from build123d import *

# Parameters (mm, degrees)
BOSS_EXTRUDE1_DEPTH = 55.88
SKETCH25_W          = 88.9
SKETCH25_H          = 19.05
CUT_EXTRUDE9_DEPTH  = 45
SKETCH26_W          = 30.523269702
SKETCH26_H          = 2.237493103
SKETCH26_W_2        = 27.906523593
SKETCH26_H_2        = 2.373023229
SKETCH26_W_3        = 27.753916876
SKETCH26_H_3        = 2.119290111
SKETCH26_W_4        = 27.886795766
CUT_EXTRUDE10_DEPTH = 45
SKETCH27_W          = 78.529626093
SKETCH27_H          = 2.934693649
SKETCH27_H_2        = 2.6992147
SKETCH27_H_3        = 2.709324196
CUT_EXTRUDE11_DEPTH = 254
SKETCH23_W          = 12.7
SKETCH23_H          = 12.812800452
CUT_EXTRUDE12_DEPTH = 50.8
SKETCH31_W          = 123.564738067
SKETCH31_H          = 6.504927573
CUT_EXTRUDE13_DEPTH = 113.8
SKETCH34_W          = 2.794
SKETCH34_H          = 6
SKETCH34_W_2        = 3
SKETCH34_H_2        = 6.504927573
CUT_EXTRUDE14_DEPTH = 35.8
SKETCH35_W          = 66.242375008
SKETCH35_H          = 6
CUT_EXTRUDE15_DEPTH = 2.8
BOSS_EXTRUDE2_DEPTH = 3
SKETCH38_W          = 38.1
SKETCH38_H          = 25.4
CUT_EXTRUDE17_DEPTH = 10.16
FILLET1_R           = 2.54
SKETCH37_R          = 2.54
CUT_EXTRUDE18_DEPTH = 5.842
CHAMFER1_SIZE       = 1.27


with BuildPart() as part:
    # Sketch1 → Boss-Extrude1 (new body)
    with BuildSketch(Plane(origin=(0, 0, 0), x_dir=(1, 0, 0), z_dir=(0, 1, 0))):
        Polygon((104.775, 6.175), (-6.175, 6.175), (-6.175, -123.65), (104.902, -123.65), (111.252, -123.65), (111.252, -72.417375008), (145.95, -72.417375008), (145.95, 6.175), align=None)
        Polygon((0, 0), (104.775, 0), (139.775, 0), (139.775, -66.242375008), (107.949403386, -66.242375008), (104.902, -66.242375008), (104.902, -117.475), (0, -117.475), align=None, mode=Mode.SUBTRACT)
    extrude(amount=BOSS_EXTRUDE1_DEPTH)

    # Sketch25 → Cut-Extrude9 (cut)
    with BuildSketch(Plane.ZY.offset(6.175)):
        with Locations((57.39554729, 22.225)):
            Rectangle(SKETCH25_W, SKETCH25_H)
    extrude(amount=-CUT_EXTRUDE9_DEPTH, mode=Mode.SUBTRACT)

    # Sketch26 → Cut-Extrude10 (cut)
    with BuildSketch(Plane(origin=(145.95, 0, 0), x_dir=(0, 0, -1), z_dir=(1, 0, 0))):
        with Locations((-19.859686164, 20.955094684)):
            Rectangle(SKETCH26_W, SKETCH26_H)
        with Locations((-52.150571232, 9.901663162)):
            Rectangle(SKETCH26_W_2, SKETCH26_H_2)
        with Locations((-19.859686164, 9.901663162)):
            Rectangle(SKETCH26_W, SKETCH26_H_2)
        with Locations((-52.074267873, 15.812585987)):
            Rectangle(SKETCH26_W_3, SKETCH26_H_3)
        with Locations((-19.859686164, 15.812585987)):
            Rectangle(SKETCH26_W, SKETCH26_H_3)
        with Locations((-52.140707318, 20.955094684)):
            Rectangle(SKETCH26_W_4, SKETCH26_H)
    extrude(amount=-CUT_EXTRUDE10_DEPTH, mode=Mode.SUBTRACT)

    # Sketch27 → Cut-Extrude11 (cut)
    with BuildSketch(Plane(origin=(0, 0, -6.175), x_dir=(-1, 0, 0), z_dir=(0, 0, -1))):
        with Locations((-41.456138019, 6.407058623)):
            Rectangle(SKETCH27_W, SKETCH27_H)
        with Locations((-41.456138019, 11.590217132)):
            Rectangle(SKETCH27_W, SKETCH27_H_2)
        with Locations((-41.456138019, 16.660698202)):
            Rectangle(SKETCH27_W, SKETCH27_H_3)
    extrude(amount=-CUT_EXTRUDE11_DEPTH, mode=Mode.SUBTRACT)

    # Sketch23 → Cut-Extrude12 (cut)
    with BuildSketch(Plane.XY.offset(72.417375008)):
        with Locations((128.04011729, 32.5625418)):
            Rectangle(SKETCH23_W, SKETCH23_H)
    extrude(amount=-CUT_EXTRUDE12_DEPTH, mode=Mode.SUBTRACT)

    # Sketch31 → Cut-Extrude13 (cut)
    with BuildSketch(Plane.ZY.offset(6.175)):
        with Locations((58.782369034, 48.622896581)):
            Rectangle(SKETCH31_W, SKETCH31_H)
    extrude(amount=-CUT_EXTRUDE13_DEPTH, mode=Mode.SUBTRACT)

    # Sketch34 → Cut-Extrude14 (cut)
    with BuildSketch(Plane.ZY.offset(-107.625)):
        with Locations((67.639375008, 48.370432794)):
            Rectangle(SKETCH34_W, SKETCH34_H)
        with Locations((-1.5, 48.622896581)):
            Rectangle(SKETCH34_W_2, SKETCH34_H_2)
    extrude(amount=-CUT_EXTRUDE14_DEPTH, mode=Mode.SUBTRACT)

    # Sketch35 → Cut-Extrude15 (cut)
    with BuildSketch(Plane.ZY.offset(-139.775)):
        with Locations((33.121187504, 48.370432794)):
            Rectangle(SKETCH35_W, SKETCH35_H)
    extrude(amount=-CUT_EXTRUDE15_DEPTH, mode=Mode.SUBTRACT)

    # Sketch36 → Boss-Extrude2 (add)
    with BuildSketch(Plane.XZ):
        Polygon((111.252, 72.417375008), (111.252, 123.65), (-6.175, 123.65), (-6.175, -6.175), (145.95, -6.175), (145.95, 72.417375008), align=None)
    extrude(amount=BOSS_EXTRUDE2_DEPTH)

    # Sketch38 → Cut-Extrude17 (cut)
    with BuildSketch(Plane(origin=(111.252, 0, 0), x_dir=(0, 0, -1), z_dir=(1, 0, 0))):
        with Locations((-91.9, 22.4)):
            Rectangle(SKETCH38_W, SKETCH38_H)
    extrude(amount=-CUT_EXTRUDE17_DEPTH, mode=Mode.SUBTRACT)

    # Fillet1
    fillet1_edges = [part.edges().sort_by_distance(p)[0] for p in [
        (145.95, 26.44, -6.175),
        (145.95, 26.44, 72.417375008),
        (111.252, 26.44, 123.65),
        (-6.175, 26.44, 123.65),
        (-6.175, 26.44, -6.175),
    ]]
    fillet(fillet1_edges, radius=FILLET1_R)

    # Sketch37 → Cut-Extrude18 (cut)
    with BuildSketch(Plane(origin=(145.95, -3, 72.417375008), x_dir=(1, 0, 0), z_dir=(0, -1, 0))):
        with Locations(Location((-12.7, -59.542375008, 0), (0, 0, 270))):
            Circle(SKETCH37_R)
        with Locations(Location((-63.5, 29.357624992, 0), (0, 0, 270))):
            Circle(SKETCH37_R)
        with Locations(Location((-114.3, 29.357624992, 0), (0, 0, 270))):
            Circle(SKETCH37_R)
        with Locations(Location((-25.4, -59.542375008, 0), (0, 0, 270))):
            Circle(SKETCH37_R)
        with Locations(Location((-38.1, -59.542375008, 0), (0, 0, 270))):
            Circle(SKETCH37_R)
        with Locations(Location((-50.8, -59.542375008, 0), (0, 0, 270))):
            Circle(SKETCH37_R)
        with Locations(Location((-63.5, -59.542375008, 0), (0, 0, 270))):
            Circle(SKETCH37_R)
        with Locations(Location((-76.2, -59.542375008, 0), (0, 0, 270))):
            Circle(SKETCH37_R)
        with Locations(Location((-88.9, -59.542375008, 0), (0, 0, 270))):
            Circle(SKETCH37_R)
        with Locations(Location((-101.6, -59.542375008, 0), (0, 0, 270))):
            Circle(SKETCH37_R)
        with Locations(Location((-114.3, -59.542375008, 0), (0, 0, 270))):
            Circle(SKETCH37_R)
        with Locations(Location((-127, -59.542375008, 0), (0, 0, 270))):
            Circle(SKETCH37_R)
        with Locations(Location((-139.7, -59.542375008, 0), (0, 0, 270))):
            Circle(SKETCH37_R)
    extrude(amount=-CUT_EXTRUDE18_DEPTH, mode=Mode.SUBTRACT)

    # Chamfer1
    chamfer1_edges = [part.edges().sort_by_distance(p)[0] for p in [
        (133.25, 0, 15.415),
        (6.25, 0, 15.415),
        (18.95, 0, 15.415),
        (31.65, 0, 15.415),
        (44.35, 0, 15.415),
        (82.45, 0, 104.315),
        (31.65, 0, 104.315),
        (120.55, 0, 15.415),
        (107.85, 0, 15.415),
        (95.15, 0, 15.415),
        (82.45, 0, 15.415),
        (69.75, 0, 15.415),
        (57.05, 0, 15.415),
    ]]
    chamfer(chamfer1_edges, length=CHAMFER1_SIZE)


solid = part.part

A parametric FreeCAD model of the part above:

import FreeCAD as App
import Part
import Sketcher

V = App.Vector
Q = App.Units.Quantity


def edges_at(feature, points):
    """Names of the edges that pass closest to the given points."""
    edges = feature.Shape.Edges
    near = lambda p: min(range(len(edges)), key=lambda i: edges[i].distToShape(Part.Vertex(*p))[0])
    return sorted({f"Edge{near(p) + 1}" for p in points})

doc = App.newDocument("Part")
body = doc.addObject("PartDesign::Body", "Body")

# Sketch on XZ plane
sketch1 = doc.addObject("Sketcher::SketchObject", "Sketch")
body.addObject(sketch1)
sketch1.AttachmentSupport = (doc.XZ_Plane, [""])
sketch1.MapMode = "FlatFace"
sketch1.addGeometry([
    Part.LineSegment(V(-6, -6, 0), V(-6, 124, 0)),  # 0
    Part.LineSegment(V(-6, 124, 0), V(111, 124, 0)),  # 1
    Part.LineSegment(V(111, 124, 0), V(111, 72, 0)),  # 2
    Part.LineSegment(V(111, 72, 0), V(146, 72, 0)),  # 3
    Part.LineSegment(V(146, 72, 0), V(146, -6, 0)),  # 4
    Part.LineSegment(V(146, -6, 0), V(-6, -6, 0)),  # 5
    Part.LineSegment(V(0, 117, 0), V(0, 0, 0)),  # 6
    Part.LineSegment(V(0, 0, 0), V(140, 0, 0)),  # 7
    Part.LineSegment(V(140, 0, 0), V(140, 66, 0)),  # 8
    Part.LineSegment(V(140, 66, 0), V(105, 66, 0)),  # 9
    Part.LineSegment(V(105, 66, 0), V(105, 117, 0)),  # 10
    Part.LineSegment(V(105, 117, 0), V(0, 117, 0)),  # 11
], False)
sketch1.addConstraint([
    Sketcher.Constraint("Coincident", 0, 2, 1, 1),
    Sketcher.Constraint("Coincident", 1, 2, 2, 1),
    Sketcher.Constraint("Coincident", 2, 2, 3, 1),
    Sketcher.Constraint("Coincident", 3, 2, 4, 1),
    Sketcher.Constraint("Coincident", 4, 2, 5, 1),
    Sketcher.Constraint("Coincident", 5, 2, 0, 1),
    Sketcher.Constraint("Coincident", 6, 2, 7, 1),
    Sketcher.Constraint("Coincident", 7, 2, 8, 1),
    Sketcher.Constraint("Coincident", 8, 2, 9, 1),
    Sketcher.Constraint("Coincident", 9, 2, 10, 1),
    Sketcher.Constraint("Coincident", 10, 2, 11, 1),
    Sketcher.Constraint("Coincident", 11, 2, 6, 1),
    Sketcher.Constraint("Vertical", 0),
    Sketcher.Constraint("Horizontal", 1),
    Sketcher.Constraint("Vertical", 2),
    Sketcher.Constraint("Horizontal", 3),
    Sketcher.Constraint("Vertical", 4),
    Sketcher.Constraint("Horizontal", 5),
    Sketcher.Constraint("Vertical", 6),
    Sketcher.Constraint("Horizontal", 7),
    Sketcher.Constraint("Vertical", 8),
    Sketcher.Constraint("Horizontal", 9),
    Sketcher.Constraint("Vertical", 10),
    Sketcher.Constraint("Horizontal", 11),
    Sketcher.Constraint("Coincident", 6, 2, -1, 1),
    Sketcher.Constraint("Equal", 2, 10),
    Sketcher.Constraint("DistanceX", 11, 2, 11, 1, Q("4.13 in")),
    Sketcher.Constraint("DistanceY", 6, 2, 6, 1, Q("4.625 in")),
    Sketcher.Constraint("DistanceX", -1, 1, 1, 2, Q("4.38 in")),
    Sketcher.Constraint("DistanceX", 1, 1, 1, 2, 117.427),
    Sketcher.Constraint("DistanceX", 3, 1, 3, 2, 34.698),
    Sketcher.Constraint("DistanceX", 7, 1, 7, 2, 139.775),
    Sketcher.Constraint("DistanceY", 0, 1, 0, 2, 129.825),
    Sketcher.Constraint("DistanceY", -1, 1, 0, 2, 123.65),
    Sketcher.Constraint("DistanceY", 2, 2, 2, 1, 51.232625),
])
pad1 = doc.addObject("PartDesign::Pad", "Pad")
body.addObject(pad1)
pad1.Profile = sketch1
pad1.Length = Q("2.2 in")
pad1.Reversed = True

# Sketch on YZ plane
sketch2 = doc.addObject("Sketcher::SketchObject", "Sketch001")
body.addObject(sketch2)
sketch2.AttachmentSupport = (doc.YZ_Plane, [""])
sketch2.MapMode = "FlatFace"
sketch2.AttachmentOffset = App.Placement(V(0, 0, -6.175), App.Rotation())
sketch2.addGeometry([
    Part.LineSegment(V(32, 13, 0), V(13, 13, 0)),
    Part.LineSegment(V(13, 13, 0), V(13, 102, 0)),
    Part.LineSegment(V(13, 102, 0), V(32, 102, 0)),
    Part.LineSegment(V(32, 102, 0), V(32, 13, 0)),
], False)
sketch2.addConstraint([
    Sketcher.Constraint("Coincident", 0, 2, 1, 1),
    Sketcher.Constraint("Coincident", 1, 2, 2, 1),
    Sketcher.Constraint("Coincident", 2, 2, 3, 1),
    Sketcher.Constraint("Coincident", 3, 2, 0, 1),
    Sketcher.Constraint("Horizontal", 0),
    Sketcher.Constraint("Vertical", 1),
    Sketcher.Constraint("Horizontal", 2),
    Sketcher.Constraint("Vertical", 3),
    Sketcher.Constraint("DistanceY", 1, 1, 1, 2, Q("3.5 in")),
    Sketcher.Constraint("DistanceX", 0, 2, 0, 1, Q("0.75 in")),
    Sketcher.Constraint("DistanceX", -1, 1, 0, 2, Q("0.5 in")),
    Sketcher.Constraint("DistanceY", -1, 1, 0, 2, 12.945547),
])
pocket1 = doc.addObject("PartDesign::Pocket", "Pocket")
body.addObject(pocket1)
pocket1.Profile = sketch2
pocket1.Length = 45
pocket1.Reversed = True

# Sketch on YZ plane
sketch3 = doc.addObject("Sketcher::SketchObject", "Sketch002")
body.addObject(sketch3)
sketch3.AttachmentSupport = (doc.YZ_Plane, [""])
sketch3.MapMode = "FlatFace"
sketch3.AttachmentOffset = App.Placement(V(0, 0, 145.95), App.Rotation())
sketch3.addGeometry([
    Part.LineSegment(V(22.1, 35.1, 0), V(19.8, 35.1, 0)),  # 0
    Part.LineSegment(V(19.8, 35.1, 0), V(19.8, 4.6, 0)),  # 1
    Part.LineSegment(V(19.8, 4.6, 0), V(22.1, 4.6, 0)),  # 2
    Part.LineSegment(V(22.1, 4.6, 0), V(22.1, 35.1, 0)),  # 3
    Part.LineSegment(V(11.1, 66.1, 0), V(8.7, 66.1, 0)),  # 4
    Part.LineSegment(V(8.7, 66.1, 0), V(8.7, 38.2, 0)),  # 5
    Part.LineSegment(V(8.7, 38.2, 0), V(11.1, 38.2, 0)),  # 6
    Part.LineSegment(V(11.1, 38.2, 0), V(11.1, 66.1, 0)),  # 7
    Part.LineSegment(V(11.1, 35.1, 0), V(8.7, 35.1, 0)),  # 8
    Part.LineSegment(V(8.7, 35.1, 0), V(8.7, 4.6, 0)),  # 9
    Part.LineSegment(V(8.7, 4.6, 0), V(11.1, 4.6, 0)),  # 10
    Part.LineSegment(V(11.1, 4.6, 0), V(11.1, 35.1, 0)),  # 11
    Part.LineSegment(V(16.9, 66, 0), V(14.8, 66, 0)),  # 12
    Part.LineSegment(V(14.8, 66, 0), V(14.8, 38.2, 0)),  # 13
    Part.LineSegment(V(14.8, 38.2, 0), V(16.9, 38.2, 0)),  # 14
    Part.LineSegment(V(16.9, 38.2, 0), V(16.9, 66, 0)),  # 15
    Part.LineSegment(V(16.9, 35.1, 0), V(14.8, 35.1, 0)),  # 16
    Part.LineSegment(V(14.8, 35.1, 0), V(14.8, 4.6, 0)),  # 17
    Part.LineSegment(V(14.8, 4.6, 0), V(16.9, 4.6, 0)),  # 18
    Part.LineSegment(V(16.9, 4.6, 0), V(16.9, 35.1, 0)),  # 19
    Part.LineSegment(V(22.1, 66.1, 0), V(19.8, 66.1, 0)),  # 20
    Part.LineSegment(V(19.8, 66.1, 0), V(19.8, 38.2, 0)),  # 21
    Part.LineSegment(V(19.8, 38.2, 0), V(22.1, 38.2, 0)),  # 22
    Part.LineSegment(V(22.1, 38.2, 0), V(22.1, 66.1, 0)),  # 23
], False)
sketch3.addConstraint([
    Sketcher.Constraint("Coincident", 0, 2, 1, 1),
    Sketcher.Constraint("Coincident", 1, 2, 2, 1),
    Sketcher.Constraint("Coincident", 2, 2, 3, 1),
    Sketcher.Constraint("Coincident", 3, 2, 0, 1),
    Sketcher.Constraint("Coincident", 4, 2, 5, 1),
    Sketcher.Constraint("Coincident", 5, 2, 6, 1),
    Sketcher.Constraint("Coincident", 6, 2, 7, 1),
    Sketcher.Constraint("Coincident", 7, 2, 4, 1),
    Sketcher.Constraint("Coincident", 8, 2, 9, 1),
    Sketcher.Constraint("Coincident", 9, 2, 10, 1),
    Sketcher.Constraint("Coincident", 10, 2, 11, 1),
    Sketcher.Constraint("Coincident", 11, 2, 8, 1),
    Sketcher.Constraint("Coincident", 12, 2, 13, 1),
    Sketcher.Constraint("Coincident", 13, 2, 14, 1),
    Sketcher.Constraint("Coincident", 14, 2, 15, 1),
    Sketcher.Constraint("Coincident", 15, 2, 12, 1),
    Sketcher.Constraint("Coincident", 16, 2, 17, 1),
    Sketcher.Constraint("Coincident", 17, 2, 18, 1),
    Sketcher.Constraint("Coincident", 18, 2, 19, 1),
    Sketcher.Constraint("Coincident", 19, 2, 16, 1),
    Sketcher.Constraint("Coincident", 20, 2, 21, 1),
    Sketcher.Constraint("Coincident", 21, 2, 22, 1),
    Sketcher.Constraint("Coincident", 22, 2, 23, 1),
    Sketcher.Constraint("Coincident", 23, 2, 20, 1),
    Sketcher.Constraint("Horizontal", 0),
    Sketcher.Constraint("Vertical", 1),
    Sketcher.Constraint("Horizontal", 2),
    Sketcher.Constraint("Vertical", 3),
    Sketcher.Constraint("Horizontal", 4),
    Sketcher.Constraint("Vertical", 5),
    Sketcher.Constraint("Horizontal", 6),
    Sketcher.Constraint("Vertical", 7),
    Sketcher.Constraint("Horizontal", 8),
    Sketcher.Constraint("Vertical", 9),
    Sketcher.Constraint("Horizontal", 10),
    Sketcher.Constraint("Vertical", 11),
    Sketcher.Constraint("Horizontal", 12),
    Sketcher.Constraint("Vertical", 13),
    Sketcher.Constraint("Horizontal", 14),
    Sketcher.Constraint("Vertical", 15),
    Sketcher.Constraint("Horizontal", 16),
    Sketcher.Constraint("Vertical", 17),
    Sketcher.Constraint("Horizontal", 18),
    Sketcher.Constraint("Vertical", 19),
    Sketcher.Constraint("Horizontal", 20),
    Sketcher.Constraint("Vertical", 21),
    Sketcher.Constraint("Horizontal", 22),
    Sketcher.Constraint("Vertical", 23),
    Sketcher.Constraint("Horizontal", 3, 2, 8, 2),
    Sketcher.Constraint("Horizontal", 2, 2, 9, 2),
    Sketcher.Constraint("Horizontal", 6, 2, 13, 2),
    Sketcher.Constraint("Horizontal", 11, 2, 16, 2),
    Sketcher.Constraint("Horizontal", 10, 2, 17, 2),
    Sketcher.Constraint("Horizontal", 14, 2, 21, 2),
    Sketcher.Constraint("Vertical", 5, 2, 8, 2),
    Sketcher.Constraint("Vertical", 7, 2, 10, 2),
    Sketcher.Constraint("Vertical", 13, 2, 16, 2),
    Sketcher.Constraint("Vertical", 15, 2, 18, 2),
    Sketcher.Constraint("Vertical", 1, 2, 20, 2),
    Sketcher.Constraint("Vertical", 3, 2, 22, 2),
    Sketcher.Constraint("DistanceX", 12, 2, 12, 1, 2.11929),
    Sketcher.Constraint("DistanceY", 1, 2, 1, 1, 30.52327),
    Sketcher.Constraint("DistanceX", 17, 2, 2, 2, 7.3209),
    Sketcher.Constraint("DistanceX", 0, 2, 0, 1, 2.237493),
    Sketcher.Constraint("DistanceX", 4, 2, 4, 1, 2.373023),
    Sketcher.Constraint("DistanceY", 5, 2, 5, 1, 27.906524),
    Sketcher.Constraint("DistanceY", 13, 2, 13, 1, 27.753917),
    Sketcher.Constraint("DistanceY", 21, 2, 21, 1, 27.886796),
    Sketcher.Constraint("DistanceX", -1, 1, 0, 2, 19.836348),
    Sketcher.Constraint("DistanceY", -1, 1, 0, 2, 35.121321),
    Sketcher.Constraint("DistanceX", -1, 1, 4, 2, 8.715152),
    Sketcher.Constraint("DistanceY", -1, 1, 5, 2, 38.197309),
])
pocket2 = doc.addObject("PartDesign::Pocket", "Pocket001")
body.addObject(pocket2)
pocket2.Profile = sketch3
pocket2.Length = 45

# Sketch on XY plane
sketch4 = doc.addObject("Sketcher::SketchObject", "Sketch003")
body.addObject(sketch4)
sketch4.AttachmentSupport = (doc.XY_Plane, [""])
sketch4.MapMode = "FlatFace"
sketch4.AttachmentOffset = App.Placement(V(0, 0, -6.175), App.Rotation())
sketch4.addGeometry([
    Part.LineSegment(V(80.7, 7.9, 0), V(80.7, 4.9, 0)),  # 0
    Part.LineSegment(V(80.7, 4.9, 0), V(2.2, 4.9, 0)),  # 1
    Part.LineSegment(V(2.2, 4.9, 0), V(2.2, 7.9, 0)),  # 2
    Part.LineSegment(V(2.2, 7.9, 0), V(80.7, 7.9, 0)),  # 3
    Part.LineSegment(V(80.7, 12.9, 0), V(80.7, 10.2, 0)),  # 4
    Part.LineSegment(V(80.7, 10.2, 0), V(2.2, 10.2, 0)),  # 5
    Part.LineSegment(V(2.2, 10.2, 0), V(2.2, 12.9, 0)),  # 6
    Part.LineSegment(V(2.2, 12.9, 0), V(80.7, 12.9, 0)),  # 7
    Part.LineSegment(V(80.7, 18, 0), V(80.7, 15.3, 0)),  # 8
    Part.LineSegment(V(80.7, 15.3, 0), V(2.2, 15.3, 0)),  # 9
    Part.LineSegment(V(2.2, 15.3, 0), V(2.2, 18, 0)),  # 10
    Part.LineSegment(V(2.2, 18, 0), V(80.7, 18, 0)),  # 11
], False)
sketch4.addConstraint([
    Sketcher.Constraint("Coincident", 0, 2, 1, 1),
    Sketcher.Constraint("Coincident", 1, 2, 2, 1),
    Sketcher.Constraint("Coincident", 2, 2, 3, 1),
    Sketcher.Constraint("Coincident", 3, 2, 0, 1),
    Sketcher.Constraint("Coincident", 4, 2, 5, 1),
    Sketcher.Constraint("Coincident", 5, 2, 6, 1),
    Sketcher.Constraint("Coincident", 6, 2, 7, 1),
    Sketcher.Constraint("Coincident", 7, 2, 4, 1),
    Sketcher.Constraint("Coincident", 8, 2, 9, 1),
    Sketcher.Constraint("Coincident", 9, 2, 10, 1),
    Sketcher.Constraint("Coincident", 10, 2, 11, 1),
    Sketcher.Constraint("Coincident", 11, 2, 8, 1),
    Sketcher.Constraint("Vertical", 0),
    Sketcher.Constraint("Horizontal", 1),
    Sketcher.Constraint("Vertical", 2),
    Sketcher.Constraint("Horizontal", 3),
    Sketcher.Constraint("Vertical", 4),
    Sketcher.Constraint("Horizontal", 5),
    Sketcher.Constraint("Vertical", 6),
    Sketcher.Constraint("Horizontal", 7),
    Sketcher.Constraint("Vertical", 8),
    Sketcher.Constraint("Horizontal", 9),
    Sketcher.Constraint("Vertical", 10),
    Sketcher.Constraint("Horizontal", 11),
    Sketcher.Constraint("Vertical", 3, 2, 4, 2),
    Sketcher.Constraint("Vertical", 2, 2, 5, 2),
    Sketcher.Constraint("Vertical", 7, 2, 8, 2),
    Sketcher.Constraint("Vertical", 6, 2, 9, 2),
    Sketcher.Constraint("DistanceY", -1, 1, 8, 2, Q("0.6025998 in")),
    Sketcher.Constraint("DistanceX", 1, 2, 1, 1, 78.529626),
    Sketcher.Constraint("DistanceY", 0, 2, 0, 1, 2.934694),
    Sketcher.Constraint("DistanceY", 4, 2, 4, 1, 2.699215),
    Sketcher.Constraint("DistanceY", 8, 2, 8, 1, 2.709324),
    Sketcher.Constraint("DistanceX", -1, 1, 0, 2, 80.720951),
    Sketcher.Constraint("DistanceY", -1, 1, 0, 2, 4.939712),
    Sketcher.Constraint("DistanceY", -1, 1, 4, 2, 10.24061),
])
pocket3 = doc.addObject("PartDesign::Pocket", "Pocket002")
body.addObject(pocket3)
pocket3.Profile = sketch4
pocket3.Length = Q("10 in")
pocket3.Reversed = True

# Sketch on XY plane
sketch5 = doc.addObject("Sketcher::SketchObject", "Sketch004")
body.addObject(sketch5)
sketch5.AttachmentSupport = (doc.XY_Plane, [""])
sketch5.MapMode = "FlatFace"
sketch5.AttachmentOffset = App.Placement(V(0, 0, 72.417375), App.Rotation())
sketch5.addGeometry([
    Part.LineSegment(V(122, 39, 0), V(122, 26, 0)),
    Part.LineSegment(V(122, 26, 0), V(134, 26, 0)),
    Part.LineSegment(V(134, 26, 0), V(134, 39, 0)),
    Part.LineSegment(V(134, 39, 0), V(122, 39, 0)),
], False)
sketch5.addConstraint([
    Sketcher.Constraint("Coincident", 0, 2, 1, 1),
    Sketcher.Constraint("Coincident", 1, 2, 2, 1),
    Sketcher.Constraint("Coincident", 2, 2, 3, 1),
    Sketcher.Constraint("Coincident", 3, 2, 0, 1),
    Sketcher.Constraint("Vertical", 0),
    Sketcher.Constraint("Horizontal", 1),
    Sketcher.Constraint("Vertical", 2),
    Sketcher.Constraint("Horizontal", 3),
    Sketcher.Constraint("DistanceX", 1, 1, 1, 2, Q("0.5 in")),
    Sketcher.Constraint("DistanceY", 0, 2, 0, 1, 12.8128),
    Sketcher.Constraint("DistanceY", -1, 1, 0, 2, 26.156142),
    Sketcher.Constraint("DistanceX", -1, 1, 0, 2, 121.690117),
])
pocket4 = doc.addObject("PartDesign::Pocket", "Pocket003")
body.addObject(pocket4)
pocket4.Profile = sketch5
pocket4.Length = Q("2 in")

# Sketch on YZ plane
sketch6 = doc.addObject("Sketcher::SketchObject", "Sketch005")
body.addObject(sketch6)
sketch6.AttachmentSupport = (doc.YZ_Plane, [""])
sketch6.MapMode = "FlatFace"
sketch6.AttachmentOffset = App.Placement(V(0, 0, -6.175), App.Rotation())
sketch6.addGeometry([
    Part.LineSegment(V(52, -3, 0), V(45, -3, 0)),
    Part.LineSegment(V(45, -3, 0), V(45, 121, 0)),
    Part.LineSegment(V(45, 121, 0), V(52, 121, 0)),
    Part.LineSegment(V(52, 121, 0), V(52, -3, 0)),
], False)
sketch6.addConstraint([
    Sketcher.Constraint("Coincident", 0, 2, 1, 1),
    Sketcher.Constraint("Coincident", 1, 2, 2, 1),
    Sketcher.Constraint("Coincident", 2, 2, 3, 1),
    Sketcher.Constraint("Coincident", 3, 2, 0, 1),
    Sketcher.Constraint("Horizontal", 0),
    Sketcher.Constraint("Vertical", 1),
    Sketcher.Constraint("Horizontal", 2),
    Sketcher.Constraint("Vertical", 3),
    Sketcher.Constraint("DistanceY", 1, 1, 1, 2, 123.564738),
    Sketcher.Constraint("DistanceY", 0, 2, -1, 1, 3.0),
    Sketcher.Constraint("DistanceX", 0, 2, 0, 1, 6.504928),
    Sketcher.Constraint("DistanceX", -1, 1, 2, 2, 51.87536),
])
pocket5 = doc.addObject("PartDesign::Pocket", "Pocket004")
body.addObject(pocket5)
pocket5.Profile = sketch6
pocket5.Length = 113.8
pocket5.Reversed = True

# Sketch on YZ plane
sketch7 = doc.addObject("Sketcher::SketchObject", "Sketch006")
body.addObject(sketch7)
sketch7.AttachmentSupport = (doc.YZ_Plane, [""])
sketch7.MapMode = "FlatFace"
sketch7.AttachmentOffset = App.Placement(V(0, 0, 107.625), App.Rotation())
sketch7.addGeometry([
    Part.LineSegment(V(51.4, 66.2, 0), V(45.4, 66.2, 0)),  # 0
    Part.LineSegment(V(45.4, 66.2, 0), V(45.4, 69, 0)),  # 1
    Part.LineSegment(V(45.4, 69, 0), V(51.4, 69, 0)),  # 2
    Part.LineSegment(V(51.4, 69, 0), V(51.4, 66.2, 0)),  # 3
    Part.LineSegment(V(51.9, -3, 0), V(45.4, -3, 0)),  # 4
    Part.LineSegment(V(45.4, -3, 0), V(45.4, 0, 0)),  # 5
    Part.LineSegment(V(45.4, 0, 0), V(51.9, 0, 0)),  # 6
    Part.LineSegment(V(51.9, 0, 0), V(51.9, -3, 0)),  # 7
], False)
sketch7.addConstraint([
    Sketcher.Constraint("Coincident", 0, 2, 1, 1),
    Sketcher.Constraint("Coincident", 1, 2, 2, 1),
    Sketcher.Constraint("Coincident", 2, 2, 3, 1),
    Sketcher.Constraint("Coincident", 3, 2, 0, 1),
    Sketcher.Constraint("Coincident", 4, 2, 5, 1),
    Sketcher.Constraint("Coincident", 5, 2, 6, 1),
    Sketcher.Constraint("Coincident", 6, 2, 7, 1),
    Sketcher.Constraint("Coincident", 7, 2, 4, 1),
    Sketcher.Constraint("Horizontal", 0),
    Sketcher.Constraint("Vertical", 1),
    Sketcher.Constraint("Horizontal", 2),
    Sketcher.Constraint("Vertical", 3),
    Sketcher.Constraint("Horizontal", 4),
    Sketcher.Constraint("Vertical", 5),
    Sketcher.Constraint("Horizontal", 6),
    Sketcher.Constraint("Vertical", 7),
    Sketcher.Constraint("PointOnObject", 5, 2, -1),
    Sketcher.Constraint("Vertical", 1, 2, 4, 2),
    Sketcher.Constraint("DistanceY", 1, 1, 1, 2, Q("0.11 in")),
    Sketcher.Constraint("DistanceX", 0, 2, 0, 1, 6.0),
    Sketcher.Constraint("DistanceY", 5, 1, 5, 2, 3.0),
    Sketcher.Constraint("DistanceX", 4, 2, 4, 1, 6.504928),
    Sketcher.Constraint("DistanceX", -1, 1, 6, 2, 51.87536),
    Sketcher.Constraint("DistanceY", -1, 1, 0, 2, 66.242375),
])
pocket6 = doc.addObject("PartDesign::Pocket", "Pocket005")
body.addObject(pocket6)
pocket6.Profile = sketch7
pocket6.Length = 35.8
pocket6.Reversed = True

# Sketch on YZ plane
sketch8 = doc.addObject("Sketcher::SketchObject", "Sketch007")
body.addObject(sketch8)
sketch8.AttachmentSupport = (doc.YZ_Plane, [""])
sketch8.MapMode = "FlatFace"
sketch8.AttachmentOffset = App.Placement(V(0, 0, 139.775), App.Rotation())
sketch8.addGeometry([
    Part.LineSegment(V(51, 0, 0), V(45, 0, 0)),
    Part.LineSegment(V(45, 0, 0), V(45, 66, 0)),
    Part.LineSegment(V(45, 66, 0), V(51, 66, 0)),
    Part.LineSegment(V(51, 66, 0), V(51, 0, 0)),
], False)
sketch8.addConstraint([
    Sketcher.Constraint("Coincident", 0, 2, 1, 1),
    Sketcher.Constraint("Coincident", 1, 2, 2, 1),
    Sketcher.Constraint("Coincident", 2, 2, 3, 1),
    Sketcher.Constraint("Coincident", 3, 2, 0, 1),
    Sketcher.Constraint("Horizontal", 0),
    Sketcher.Constraint("Vertical", 1),
    Sketcher.Constraint("Horizontal", 2),
    Sketcher.Constraint("Vertical", 3),
    Sketcher.Constraint("PointOnObject", 0, 2, -1),
    Sketcher.Constraint("DistanceX", 0, 2, 0, 1, 6.0),
    Sketcher.Constraint("DistanceY", 1, 1, 1, 2, 66.242375),
    Sketcher.Constraint("DistanceX", -1, 1, 0, 2, 45.370433),
])
pocket7 = doc.addObject("PartDesign::Pocket", "Pocket006")
body.addObject(pocket7)
pocket7.Profile = sketch8
pocket7.Length = 2.8
pocket7.Reversed = True

# Sketch on XZ plane
sketch9 = doc.addObject("Sketcher::SketchObject", "Sketch008")
body.addObject(sketch9)
sketch9.AttachmentSupport = (doc.XZ_Plane, [""])
sketch9.MapMode = "FlatFace"
sketch9.addGeometry([
    Part.LineSegment(V(111, 72, 0), V(111, 124, 0)),  # 0
    Part.LineSegment(V(111, 124, 0), V(-6, 124, 0)),  # 1
    Part.LineSegment(V(-6, 124, 0), V(-6, -6, 0)),  # 2
    Part.LineSegment(V(-6, -6, 0), V(146, -6, 0)),  # 3
    Part.LineSegment(V(146, -6, 0), V(146, 72, 0)),  # 4
    Part.LineSegment(V(146, 72, 0), V(111, 72, 0)),  # 5
], False)
sketch9.addConstraint([
    Sketcher.Constraint("Coincident", 0, 2, 1, 1),
    Sketcher.Constraint("Coincident", 1, 2, 2, 1),
    Sketcher.Constraint("Coincident", 2, 2, 3, 1),
    Sketcher.Constraint("Coincident", 3, 2, 4, 1),
    Sketcher.Constraint("Coincident", 4, 2, 5, 1),
    Sketcher.Constraint("Coincident", 5, 2, 0, 1),
    Sketcher.Constraint("Vertical", 0),
    Sketcher.Constraint("Horizontal", 1),
    Sketcher.Constraint("Vertical", 2),
    Sketcher.Constraint("Horizontal", 3),
    Sketcher.Constraint("Vertical", 4),
    Sketcher.Constraint("Horizontal", 5),
    Sketcher.Constraint("DistanceX", -1, 1, 0, 2, Q("4.38 in")),
    Sketcher.Constraint("DistanceX", 1, 2, 1, 1, 117.427),
    Sketcher.Constraint("DistanceX", 3, 1, 3, 2, 152.125),
    Sketcher.Constraint("DistanceY", 2, 2, 2, 1, 129.825),
    Sketcher.Constraint("DistanceY", -1, 1, 0, 2, 123.65),
    Sketcher.Constraint("DistanceY", 0, 1, 0, 2, 51.232625),
])
pad2 = doc.addObject("PartDesign::Pad", "Pad001")
body.addObject(pad2)
pad2.Profile = sketch9
pad2.Length = 3

# Sketch on YZ plane
sketch10 = doc.addObject("Sketcher::SketchObject", "Sketch009")
body.addObject(sketch10)
sketch10.AttachmentSupport = (doc.YZ_Plane, [""])
sketch10.MapMode = "FlatFace"
sketch10.AttachmentOffset = App.Placement(V(0, 0, 4.38 * 25.4), App.Rotation())
sketch10.addGeometry([
    Part.LineSegment(V(35, 111, 0), V(10, 111, 0)),
    Part.LineSegment(V(10, 111, 0), V(10, 73, 0)),
    Part.LineSegment(V(10, 73, 0), V(35, 73, 0)),
    Part.LineSegment(V(35, 73, 0), V(35, 111, 0)),
], False)
sketch10.addConstraint([
    Sketcher.Constraint("Coincident", 0, 2, 1, 1),
    Sketcher.Constraint("Coincident", 1, 2, 2, 1),
    Sketcher.Constraint("Coincident", 2, 2, 3, 1),
    Sketcher.Constraint("Coincident", 3, 2, 0, 1),
    Sketcher.Constraint("Horizontal", 0),
    Sketcher.Constraint("Vertical", 1),
    Sketcher.Constraint("Horizontal", 2),
    Sketcher.Constraint("Vertical", 3),
    Sketcher.Constraint("DistanceX", 0, 2, 0, 1, Q("1 in")),
    Sketcher.Constraint("DistanceY", 1, 2, 1, 1, Q("1.5 in")),
    Sketcher.Constraint("DistanceX", -1, 1, 0, 2, 9.7),
    Sketcher.Constraint("DistanceY", -1, 1, 0, 2, 110.95),
])
pocket8 = doc.addObject("PartDesign::Pocket", "Pocket007")
body.addObject(pocket8)
pocket8.Profile = sketch10
pocket8.Length = Q("0.4 in")
doc.recompute()

fillet = doc.addObject("PartDesign::Fillet", "Fillet")
body.addObject(fillet)
fillet.Base = (pocket8, edges_at(pocket8, [
    (145.95, 26.44, -6.175),
    (145.95, 26.44, 72.417),
    (111.252, 26.44, 123.65),
    (-6.175, 26.44, 123.65),
    (-6.175, 26.44, -6.175),
]))
fillet.Radius = Q("0.1 in")

# Sketch on XZ plane
sketch11 = doc.addObject("Sketcher::SketchObject", "Sketch010")
body.addObject(sketch11)
sketch11.AttachmentSupport = (doc.XZ_Plane, [""])
sketch11.MapMode = "FlatFace"
sketch11.AttachmentOffset = App.Placement(V(0, 0, 3), App.Rotation())
sketch11.addGeometry([
    Part.Circle(V(133.2, 12.9, 0), V(0, 0, 1), 2.5),  # 0
    Part.Circle(V(82.5, 101.8, 0), V(0, 0, 1), 2.5),  # 1
    Part.Circle(V(31.6, 101.8, 0), V(0, 0, 1), 2.5),  # 2
    Part.Circle(V(120.5, 12.9, 0), V(0, 0, 1), 2.5),  # 3
    Part.Circle(V(107.8, 12.9, 0), V(0, 0, 1), 2.5),  # 4
    Part.Circle(V(95.2, 12.9, 0), V(0, 0, 1), 2.5),  # 5
    Part.Circle(V(82.5, 12.9, 0), V(0, 0, 1), 2.5),  # 6
    Part.Circle(V(69.8, 12.9, 0), V(0, 0, 1), 2.5),  # 7
    Part.Circle(V(57, 12.9, 0), V(0, 0, 1), 2.5),  # 8
    Part.Circle(V(44.4, 12.9, 0), V(0, 0, 1), 2.5),  # 9
    Part.Circle(V(31.6, 12.9, 0), V(0, 0, 1), 2.5),  # 10
    Part.Circle(V(18.9, 12.9, 0), V(0, 0, 1), 2.5),  # 11
    Part.Circle(V(6.2, 12.9, 0), V(0, 0, 1), 2.5),  # 12
], False)
sketch11.addConstraint([
    Sketcher.Constraint("Equal", 0, 1),
    Sketcher.Constraint("Equal", 1, 2),
    Sketcher.Constraint("Equal", 2, 3),
    Sketcher.Constraint("Equal", 3, 4),
    Sketcher.Constraint("Equal", 4, 5),
    Sketcher.Constraint("Equal", 5, 6),
    Sketcher.Constraint("Equal", 6, 7),
    Sketcher.Constraint("Equal", 7, 8),
    Sketcher.Constraint("Equal", 8, 9),
    Sketcher.Constraint("Equal", 9, 10),
    Sketcher.Constraint("Equal", 10, 11),
    Sketcher.Constraint("Equal", 11, 12),
    Sketcher.Constraint("Horizontal", 1, 3, 2, 3),
    Sketcher.Constraint("Horizontal", 0, 3, 3, 3),
    Sketcher.Constraint("Horizontal", 3, 3, 4, 3),
    Sketcher.Constraint("Horizontal", 4, 3, 5, 3),
    Sketcher.Constraint("Horizontal", 5, 3, 6, 3),
    Sketcher.Constraint("Horizontal", 6, 3, 7, 3),
    Sketcher.Constraint("Horizontal", 7, 3, 8, 3),
    Sketcher.Constraint("Horizontal", 8, 3, 9, 3),
    Sketcher.Constraint("Horizontal", 9, 3, 10, 3),
    Sketcher.Constraint("Horizontal", 10, 3, 11, 3),
    Sketcher.Constraint("Horizontal", 11, 3, 12, 3),
    Sketcher.Constraint("Vertical", 1, 3, 6, 3),
    Sketcher.Constraint("Vertical", 2, 3, 10, 3),
    Sketcher.Constraint("Diameter", 0, Q("0.2 in")),
    Sketcher.Constraint("DistanceX", 1, 3, 0, 3, Q("2 in")),
    Sketcher.Constraint("DistanceX", 2, 3, 1, 3, Q("2 in")),
    Sketcher.Constraint("DistanceX", 4, 3, 0, 3, Q("1 in")),
    Sketcher.Constraint("DistanceX", 5, 3, 3, 3, Q("1 in")),
    Sketcher.Constraint("DistanceX", 7, 3, 5, 3, Q("1 in")),
    Sketcher.Constraint("DistanceX", 8, 3, 6, 3, Q("1 in")),
    Sketcher.Constraint("DistanceX", 9, 3, 7, 3, Q("1 in")),
    Sketcher.Constraint("DistanceX", 11, 3, 9, 3, Q("1 in")),
    Sketcher.Constraint("DistanceX", 12, 3, 10, 3, Q("1 in")),
    Sketcher.Constraint("DistanceY", 0, 3, 1, 3, Q("3.5 in")),
    Sketcher.Constraint("DistanceX", 3, 3, 0, 3, Q("0.5 in")),
    Sketcher.Constraint("DistanceX", -1, 1, 0, 3, 133.25),
    Sketcher.Constraint("DistanceY", -1, 1, 0, 3, 12.875),
])
pocket9 = doc.addObject("PartDesign::Pocket", "Pocket008")
body.addObject(pocket9)
pocket9.Profile = sketch11
pocket9.Length = Q("0.23 in")
doc.recompute()

chamfer = doc.addObject("PartDesign::Chamfer", "Chamfer")
body.addObject(chamfer)
chamfer.Base = (pocket9, edges_at(pocket9, [
    (133.25, 0, 15.415),
    (6.25, 0, 15.415),
    (18.95, 0, 15.415),
    (31.65, 0, 15.415),
    (44.35, 0, 15.415),
    (82.45, 0, 104.315),
    (31.65, 0, 104.315),
    (120.55, 0, 15.415),
    (107.85, 0, 15.415),
    (95.15, 0, 15.415),
    (82.45, 0, 15.415),
    (69.75, 0, 15.415),
    (57.05, 0, 15.415),
]))
chamfer.Size = Q("0.05 in")

doc.recompute()
